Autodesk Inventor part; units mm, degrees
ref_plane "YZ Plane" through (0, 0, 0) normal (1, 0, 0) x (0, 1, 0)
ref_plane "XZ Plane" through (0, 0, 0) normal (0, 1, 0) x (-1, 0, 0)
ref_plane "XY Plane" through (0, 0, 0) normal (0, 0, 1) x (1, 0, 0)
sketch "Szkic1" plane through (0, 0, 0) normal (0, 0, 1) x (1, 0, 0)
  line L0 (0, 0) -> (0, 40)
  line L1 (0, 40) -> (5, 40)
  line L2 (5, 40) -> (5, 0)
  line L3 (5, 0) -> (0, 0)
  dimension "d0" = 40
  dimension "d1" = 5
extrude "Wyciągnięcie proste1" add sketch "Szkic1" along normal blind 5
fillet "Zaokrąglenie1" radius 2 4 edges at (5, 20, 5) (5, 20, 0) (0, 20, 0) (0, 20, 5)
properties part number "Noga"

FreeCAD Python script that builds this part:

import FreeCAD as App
import Part
import Sketcher
from FreeCAD import Vector


def edges_at(feature, points):
    """Names of the edges that pass closest to the given points."""
    edges = feature.Shape.Edges
    near = lambda p: min(range(len(edges)), key=lambda i: edges[i].distToShape(Part.Vertex(*p))[0])
    return sorted({f"Edge{near(p) + 1}" for p in points})

doc = App.newDocument("Part")
body = doc.addObject("PartDesign::Body", "Body")

# Sketch on XY plane
sketch1 = body.newObject("Sketcher::SketchObject", "Sketch")
sketch1.AttachmentSupport = (doc.getObject("XY_Plane"), [""])
sketch1.MapMode = "FlatFace"
sketch1.addGeometry(Part.LineSegment(Vector(0, 40, 0), Vector(0, 0, 0)), False)
sketch1.addGeometry(Part.LineSegment(Vector(0, 0, 0), Vector(5, 0, 0)), False)
sketch1.addGeometry(Part.LineSegment(Vector(5, 0, 0), Vector(5, 40, 0)), False)
sketch1.addGeometry(Part.LineSegment(Vector(5, 40, 0), Vector(0, 40, 0)), False)
sketch1.addConstraint(Sketcher.Constraint("Coincident", 0, 2, 1, 1))
sketch1.addConstraint(Sketcher.Constraint("Coincident", 1, 2, 2, 1))
sketch1.addConstraint(Sketcher.Constraint("Coincident", 2, 2, 3, 1))
sketch1.addConstraint(Sketcher.Constraint("Coincident", 3, 2, 0, 1))
sketch1.addConstraint(Sketcher.Constraint("Vertical", 0))
sketch1.addConstraint(Sketcher.Constraint("Horizontal", 1))
sketch1.addConstraint(Sketcher.Constraint("Vertical", 2))
sketch1.addConstraint(Sketcher.Constraint("Horizontal", 3))
sketch1.addConstraint(Sketcher.Constraint("Coincident", 0, 2, -1, 1))
sketch1.addConstraint(Sketcher.Constraint("DistanceX", 1, 1, 1, 2, 5.0))
sketch1.addConstraint(Sketcher.Constraint("DistanceY", 0, 2, 0, 1, 40.0))
pad1 = body.newObject("PartDesign::Pad", "Pad")
pad1.Profile = sketch1
pad1.Length = 5
doc.recompute()

fillet = body.newObject("PartDesign::Fillet", "Fillet")
fillet.Base = (pad1, edges_at(pad1, [
    (5, 20, 5),
    (5, 20, 0),
    (0, 20, 0),
    (0, 20, 5),
]))
fillet.Radius = 2

doc.recompute()
